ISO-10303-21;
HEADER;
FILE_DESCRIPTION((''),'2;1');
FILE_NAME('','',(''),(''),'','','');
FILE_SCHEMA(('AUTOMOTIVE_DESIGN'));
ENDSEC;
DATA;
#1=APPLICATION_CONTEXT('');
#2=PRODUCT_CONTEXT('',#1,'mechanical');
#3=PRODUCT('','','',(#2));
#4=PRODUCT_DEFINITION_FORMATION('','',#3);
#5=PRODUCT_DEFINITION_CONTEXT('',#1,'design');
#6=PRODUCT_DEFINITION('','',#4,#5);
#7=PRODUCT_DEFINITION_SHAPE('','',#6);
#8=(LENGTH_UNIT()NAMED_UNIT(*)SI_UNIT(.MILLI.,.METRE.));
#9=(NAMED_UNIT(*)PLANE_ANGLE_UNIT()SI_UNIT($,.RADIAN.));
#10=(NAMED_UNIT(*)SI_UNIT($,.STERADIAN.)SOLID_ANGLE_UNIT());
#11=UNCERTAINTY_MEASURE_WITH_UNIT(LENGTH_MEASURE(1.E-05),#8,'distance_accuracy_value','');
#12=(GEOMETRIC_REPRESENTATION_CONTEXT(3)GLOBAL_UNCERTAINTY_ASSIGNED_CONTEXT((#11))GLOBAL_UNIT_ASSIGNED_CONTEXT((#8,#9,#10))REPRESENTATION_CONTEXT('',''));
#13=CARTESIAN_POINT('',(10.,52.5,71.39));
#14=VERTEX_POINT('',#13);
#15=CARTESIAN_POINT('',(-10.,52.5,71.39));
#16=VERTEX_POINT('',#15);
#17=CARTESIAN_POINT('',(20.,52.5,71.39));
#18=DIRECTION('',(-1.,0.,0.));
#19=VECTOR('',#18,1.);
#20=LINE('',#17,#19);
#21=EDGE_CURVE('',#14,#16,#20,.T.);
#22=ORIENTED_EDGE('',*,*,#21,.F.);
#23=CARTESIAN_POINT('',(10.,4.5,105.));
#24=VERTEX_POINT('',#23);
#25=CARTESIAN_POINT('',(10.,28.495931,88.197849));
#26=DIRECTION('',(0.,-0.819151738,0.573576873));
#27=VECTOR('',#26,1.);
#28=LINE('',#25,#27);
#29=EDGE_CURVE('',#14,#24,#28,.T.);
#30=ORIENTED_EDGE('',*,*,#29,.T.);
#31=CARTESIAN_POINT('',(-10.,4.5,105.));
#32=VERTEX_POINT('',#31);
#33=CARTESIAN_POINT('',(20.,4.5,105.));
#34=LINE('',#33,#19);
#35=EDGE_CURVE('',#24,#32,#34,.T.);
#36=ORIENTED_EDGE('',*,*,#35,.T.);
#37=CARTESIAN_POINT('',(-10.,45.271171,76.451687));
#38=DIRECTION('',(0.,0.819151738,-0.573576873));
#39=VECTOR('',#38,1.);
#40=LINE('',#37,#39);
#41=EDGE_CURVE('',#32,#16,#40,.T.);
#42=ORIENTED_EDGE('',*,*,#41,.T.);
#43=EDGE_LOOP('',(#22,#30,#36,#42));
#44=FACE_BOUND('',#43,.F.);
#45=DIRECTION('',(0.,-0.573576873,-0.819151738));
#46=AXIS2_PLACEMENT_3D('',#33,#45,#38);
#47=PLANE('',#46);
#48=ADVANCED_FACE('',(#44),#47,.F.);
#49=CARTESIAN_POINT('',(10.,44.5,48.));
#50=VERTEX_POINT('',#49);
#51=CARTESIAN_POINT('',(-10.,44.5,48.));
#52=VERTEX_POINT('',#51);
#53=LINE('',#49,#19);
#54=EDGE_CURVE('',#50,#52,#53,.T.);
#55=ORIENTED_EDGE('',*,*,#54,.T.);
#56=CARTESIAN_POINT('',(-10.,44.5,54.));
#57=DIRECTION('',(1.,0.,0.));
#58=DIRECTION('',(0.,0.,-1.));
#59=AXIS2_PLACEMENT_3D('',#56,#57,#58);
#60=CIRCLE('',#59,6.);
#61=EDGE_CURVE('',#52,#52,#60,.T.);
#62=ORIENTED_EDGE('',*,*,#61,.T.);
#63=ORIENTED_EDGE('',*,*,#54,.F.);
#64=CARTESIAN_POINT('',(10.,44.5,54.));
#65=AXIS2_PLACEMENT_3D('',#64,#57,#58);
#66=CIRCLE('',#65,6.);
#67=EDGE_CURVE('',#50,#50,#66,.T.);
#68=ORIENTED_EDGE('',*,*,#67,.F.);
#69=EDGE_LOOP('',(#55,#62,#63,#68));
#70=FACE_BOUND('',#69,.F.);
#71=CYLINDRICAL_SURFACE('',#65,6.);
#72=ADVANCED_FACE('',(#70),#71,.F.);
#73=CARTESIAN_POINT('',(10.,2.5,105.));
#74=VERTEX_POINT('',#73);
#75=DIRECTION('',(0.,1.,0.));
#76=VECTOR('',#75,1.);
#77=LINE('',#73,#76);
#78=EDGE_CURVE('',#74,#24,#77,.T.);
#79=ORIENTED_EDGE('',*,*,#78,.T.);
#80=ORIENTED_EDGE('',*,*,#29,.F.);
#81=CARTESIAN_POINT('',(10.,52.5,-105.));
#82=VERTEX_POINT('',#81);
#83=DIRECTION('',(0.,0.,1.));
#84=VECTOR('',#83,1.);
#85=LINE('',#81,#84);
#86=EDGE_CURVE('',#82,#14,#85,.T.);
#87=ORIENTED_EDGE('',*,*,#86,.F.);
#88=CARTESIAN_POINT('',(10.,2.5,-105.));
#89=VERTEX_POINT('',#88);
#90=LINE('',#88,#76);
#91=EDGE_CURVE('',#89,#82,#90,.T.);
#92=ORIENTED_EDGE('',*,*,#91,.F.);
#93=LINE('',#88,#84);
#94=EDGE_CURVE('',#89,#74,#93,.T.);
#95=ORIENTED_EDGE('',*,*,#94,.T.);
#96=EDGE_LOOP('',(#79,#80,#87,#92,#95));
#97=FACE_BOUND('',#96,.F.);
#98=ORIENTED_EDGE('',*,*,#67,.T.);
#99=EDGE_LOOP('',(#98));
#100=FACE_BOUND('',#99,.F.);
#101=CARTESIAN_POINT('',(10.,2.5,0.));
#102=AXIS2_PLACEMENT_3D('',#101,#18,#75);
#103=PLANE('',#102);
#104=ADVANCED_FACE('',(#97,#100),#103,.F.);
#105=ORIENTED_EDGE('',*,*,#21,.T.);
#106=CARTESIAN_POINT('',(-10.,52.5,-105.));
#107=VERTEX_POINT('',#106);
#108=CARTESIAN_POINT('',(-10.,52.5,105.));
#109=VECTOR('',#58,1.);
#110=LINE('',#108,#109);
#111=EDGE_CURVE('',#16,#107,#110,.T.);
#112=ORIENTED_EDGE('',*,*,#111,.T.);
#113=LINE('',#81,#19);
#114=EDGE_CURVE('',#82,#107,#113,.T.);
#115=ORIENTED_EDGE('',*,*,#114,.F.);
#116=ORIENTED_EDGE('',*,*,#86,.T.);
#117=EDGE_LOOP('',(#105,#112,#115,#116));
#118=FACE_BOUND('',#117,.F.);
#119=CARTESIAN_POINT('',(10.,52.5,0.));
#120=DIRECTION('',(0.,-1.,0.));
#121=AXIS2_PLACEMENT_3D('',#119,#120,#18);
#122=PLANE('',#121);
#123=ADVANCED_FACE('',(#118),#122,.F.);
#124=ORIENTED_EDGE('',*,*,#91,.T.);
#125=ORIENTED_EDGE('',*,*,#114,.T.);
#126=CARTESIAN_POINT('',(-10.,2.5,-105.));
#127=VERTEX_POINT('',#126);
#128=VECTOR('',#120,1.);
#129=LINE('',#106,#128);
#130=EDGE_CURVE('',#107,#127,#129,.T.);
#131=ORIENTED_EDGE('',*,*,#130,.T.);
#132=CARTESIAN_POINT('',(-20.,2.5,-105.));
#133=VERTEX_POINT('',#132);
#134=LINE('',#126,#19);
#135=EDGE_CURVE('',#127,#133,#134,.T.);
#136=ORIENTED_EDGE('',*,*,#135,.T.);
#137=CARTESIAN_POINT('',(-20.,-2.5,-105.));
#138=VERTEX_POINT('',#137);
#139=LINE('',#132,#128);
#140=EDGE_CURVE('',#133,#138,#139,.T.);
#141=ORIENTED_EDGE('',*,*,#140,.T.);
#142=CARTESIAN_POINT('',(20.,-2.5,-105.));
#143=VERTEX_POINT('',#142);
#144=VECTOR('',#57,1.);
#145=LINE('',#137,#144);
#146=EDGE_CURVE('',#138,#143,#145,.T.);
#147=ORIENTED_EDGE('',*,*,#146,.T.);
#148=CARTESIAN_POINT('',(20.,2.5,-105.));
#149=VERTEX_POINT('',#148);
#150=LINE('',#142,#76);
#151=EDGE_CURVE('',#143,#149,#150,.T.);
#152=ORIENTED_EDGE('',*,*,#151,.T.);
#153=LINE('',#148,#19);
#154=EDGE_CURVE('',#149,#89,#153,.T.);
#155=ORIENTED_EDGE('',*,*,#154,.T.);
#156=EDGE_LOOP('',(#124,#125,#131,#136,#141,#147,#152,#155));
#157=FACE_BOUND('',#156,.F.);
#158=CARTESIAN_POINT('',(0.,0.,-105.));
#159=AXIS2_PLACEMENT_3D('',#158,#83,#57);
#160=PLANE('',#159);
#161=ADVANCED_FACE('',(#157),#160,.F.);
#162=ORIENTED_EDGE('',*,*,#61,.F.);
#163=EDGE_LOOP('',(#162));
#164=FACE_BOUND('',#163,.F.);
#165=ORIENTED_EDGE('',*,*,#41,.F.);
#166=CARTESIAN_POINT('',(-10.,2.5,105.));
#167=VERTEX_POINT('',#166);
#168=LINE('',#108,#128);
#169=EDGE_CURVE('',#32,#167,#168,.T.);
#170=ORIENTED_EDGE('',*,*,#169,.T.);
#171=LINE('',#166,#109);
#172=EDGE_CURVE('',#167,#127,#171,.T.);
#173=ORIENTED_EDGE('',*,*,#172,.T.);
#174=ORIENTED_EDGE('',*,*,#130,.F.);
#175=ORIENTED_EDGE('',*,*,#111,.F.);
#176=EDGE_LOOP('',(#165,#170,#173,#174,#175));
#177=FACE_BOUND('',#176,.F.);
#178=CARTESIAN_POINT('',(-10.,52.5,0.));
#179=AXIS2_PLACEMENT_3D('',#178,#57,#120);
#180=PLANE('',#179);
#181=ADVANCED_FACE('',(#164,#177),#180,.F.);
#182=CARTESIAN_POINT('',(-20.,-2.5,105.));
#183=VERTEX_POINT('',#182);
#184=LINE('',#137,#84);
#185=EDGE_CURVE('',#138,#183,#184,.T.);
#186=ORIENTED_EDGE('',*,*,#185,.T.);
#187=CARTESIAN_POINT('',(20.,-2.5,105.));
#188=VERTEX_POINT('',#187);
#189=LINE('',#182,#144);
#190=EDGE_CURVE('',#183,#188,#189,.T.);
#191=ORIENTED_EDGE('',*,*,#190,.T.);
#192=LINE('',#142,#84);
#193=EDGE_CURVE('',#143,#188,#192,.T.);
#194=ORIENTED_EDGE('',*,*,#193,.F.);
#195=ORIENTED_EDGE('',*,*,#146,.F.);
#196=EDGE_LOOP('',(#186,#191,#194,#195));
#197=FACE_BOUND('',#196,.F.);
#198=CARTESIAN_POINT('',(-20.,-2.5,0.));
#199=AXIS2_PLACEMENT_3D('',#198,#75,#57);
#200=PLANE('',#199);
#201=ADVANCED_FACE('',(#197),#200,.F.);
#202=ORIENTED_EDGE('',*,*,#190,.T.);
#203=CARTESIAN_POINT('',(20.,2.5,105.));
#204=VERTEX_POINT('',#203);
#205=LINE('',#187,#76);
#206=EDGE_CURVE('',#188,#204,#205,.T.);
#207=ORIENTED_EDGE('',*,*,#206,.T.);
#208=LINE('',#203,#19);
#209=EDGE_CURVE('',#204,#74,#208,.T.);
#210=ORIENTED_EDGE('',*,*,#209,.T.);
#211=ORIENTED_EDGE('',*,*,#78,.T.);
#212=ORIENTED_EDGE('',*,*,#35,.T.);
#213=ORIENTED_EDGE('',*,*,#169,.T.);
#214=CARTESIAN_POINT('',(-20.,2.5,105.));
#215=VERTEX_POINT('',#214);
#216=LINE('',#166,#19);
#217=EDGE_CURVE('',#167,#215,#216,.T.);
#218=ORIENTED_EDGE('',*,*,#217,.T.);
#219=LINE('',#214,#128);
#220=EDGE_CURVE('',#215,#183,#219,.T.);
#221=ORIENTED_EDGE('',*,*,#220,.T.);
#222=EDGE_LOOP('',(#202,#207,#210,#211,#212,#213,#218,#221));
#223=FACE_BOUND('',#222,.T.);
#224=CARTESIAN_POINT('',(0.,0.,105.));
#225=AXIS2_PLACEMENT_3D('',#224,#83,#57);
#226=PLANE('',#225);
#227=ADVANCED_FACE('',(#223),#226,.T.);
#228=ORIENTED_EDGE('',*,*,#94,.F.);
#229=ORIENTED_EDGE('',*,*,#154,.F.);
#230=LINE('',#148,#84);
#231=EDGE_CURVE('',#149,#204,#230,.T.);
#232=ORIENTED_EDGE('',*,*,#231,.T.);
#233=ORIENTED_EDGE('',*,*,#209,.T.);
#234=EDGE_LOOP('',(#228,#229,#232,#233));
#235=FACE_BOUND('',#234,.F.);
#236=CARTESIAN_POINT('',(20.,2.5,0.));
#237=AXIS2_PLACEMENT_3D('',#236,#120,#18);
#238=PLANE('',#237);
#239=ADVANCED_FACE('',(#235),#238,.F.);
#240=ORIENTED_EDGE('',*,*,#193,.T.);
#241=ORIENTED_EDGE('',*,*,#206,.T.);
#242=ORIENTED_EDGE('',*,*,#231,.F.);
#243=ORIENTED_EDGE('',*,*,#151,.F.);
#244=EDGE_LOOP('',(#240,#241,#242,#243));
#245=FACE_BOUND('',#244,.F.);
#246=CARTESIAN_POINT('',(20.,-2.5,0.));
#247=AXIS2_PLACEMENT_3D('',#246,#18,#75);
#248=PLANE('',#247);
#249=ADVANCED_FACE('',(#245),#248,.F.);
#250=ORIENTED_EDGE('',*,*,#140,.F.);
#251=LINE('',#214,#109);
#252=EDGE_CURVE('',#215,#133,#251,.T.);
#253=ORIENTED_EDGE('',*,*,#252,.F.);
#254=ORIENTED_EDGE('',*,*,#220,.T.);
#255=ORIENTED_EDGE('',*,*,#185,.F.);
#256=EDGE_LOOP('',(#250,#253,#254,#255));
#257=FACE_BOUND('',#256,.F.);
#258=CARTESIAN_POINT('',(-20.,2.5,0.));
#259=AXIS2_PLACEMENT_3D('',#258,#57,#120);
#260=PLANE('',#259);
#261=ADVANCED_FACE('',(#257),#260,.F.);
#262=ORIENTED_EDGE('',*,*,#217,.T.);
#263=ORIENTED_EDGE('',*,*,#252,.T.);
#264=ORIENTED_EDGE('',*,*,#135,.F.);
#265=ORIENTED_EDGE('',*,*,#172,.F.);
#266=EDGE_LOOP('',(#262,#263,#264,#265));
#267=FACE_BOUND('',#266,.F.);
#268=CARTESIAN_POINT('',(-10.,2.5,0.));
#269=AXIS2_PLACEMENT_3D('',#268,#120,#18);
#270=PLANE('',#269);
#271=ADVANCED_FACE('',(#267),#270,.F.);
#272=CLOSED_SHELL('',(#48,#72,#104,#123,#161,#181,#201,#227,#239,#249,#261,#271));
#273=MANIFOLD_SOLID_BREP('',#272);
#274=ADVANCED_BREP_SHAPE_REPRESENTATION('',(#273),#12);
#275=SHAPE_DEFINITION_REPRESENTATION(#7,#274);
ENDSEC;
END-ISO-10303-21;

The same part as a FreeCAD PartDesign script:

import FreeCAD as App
import Part
import Sketcher
Q = App.Units.Quantity


def add_polygon(sketch, points):
    """Adds a closed chain of lines whose ends are joined by coincident constraints."""
    first, n = sketch.GeometryCount, len(points)
    for a, b in zip(points, points[1:] + points[:1]):
        sketch.addGeometry(Part.LineSegment(App.Vector(*a, 0), App.Vector(*b, 0)), False)
    for i in range(n):
        sketch.addConstraint(Sketcher.Constraint("Coincident", first + i, 2, first + (i + 1) % n, 1))

doc = App.newDocument("Part")
body = doc.addObject("PartDesign::Body", "Body")

# Sketch on XY plane
sketch1 = doc.addObject("Sketcher::SketchObject", "Sketch")
body.addObject(sketch1)
sketch1.AttachmentSupport = (doc.XY_Plane, [""])
sketch1.MapMode = "FlatFace"
add_polygon(sketch1, [(-20, 2), (-20, -2), (20, -2), (20, 2), (10, 2), (10, 52), (-10, 52), (-10, 2)])  # lines 0-7
sketch1.addConstraint(Sketcher.Constraint("Vertical", 0))
sketch1.addConstraint(Sketcher.Constraint("Horizontal", 1))
sketch1.addConstraint(Sketcher.Constraint("Vertical", 2))
sketch1.addConstraint(Sketcher.Constraint("Horizontal", 3))
sketch1.addConstraint(Sketcher.Constraint("Vertical", 4))
sketch1.addConstraint(Sketcher.Constraint("Horizontal", 5))
sketch1.addConstraint(Sketcher.Constraint("Vertical", 6))
sketch1.addConstraint(Sketcher.Constraint("Horizontal", 7))
sketch1.addConstraint(Sketcher.Constraint("Symmetric", 0, 2, 2, 2, -1, 1))
sketch1.addConstraint(Sketcher.Constraint("Symmetric", 3, 2, 6, 2, -2))
sketch1.addConstraint(Sketcher.Constraint("DistanceX", 3, 2, 3, 1, 10.0))
sketch1.addConstraint(Sketcher.Constraint("DistanceX", 5, 2, 5, 1, 20.0))
sketch1.addConstraint(Sketcher.Constraint("DistanceY", 0, 2, 0, 1, 5.0))
sketch1.addConstraint(Sketcher.Constraint("DistanceY", 4, 1, 4, 2, 50.0))
pad1 = doc.addObject("PartDesign::Pad", "Pad")
body.addObject(pad1)
pad1.Profile = sketch1
pad1.Length = 210
pad1.Midplane = True

# Sketch on YZ plane
sketch2 = doc.addObject("Sketcher::SketchObject", "Sketch001")
body.addObject(sketch2)
sketch2.AttachmentSupport = (doc.YZ_Plane, [""])
sketch2.MapMode = "FlatFace"
sketch2.AttachmentOffset = App.Placement(App.Vector(0, 0, 20), App.Rotation())
add_polygon(sketch2, [(52, 105), (4, 105), (52, 71)])  # lines 0-2
sketch2.addConstraint(Sketcher.Constraint("Horizontal", 0))
sketch2.addConstraint(Sketcher.Constraint("Vertical", 2))
sketch2.addConstraint(Sketcher.Constraint("Angle", 1, Q("-35 deg")))
sketch2.addConstraint(Sketcher.Constraint("DistanceX", 0, 2, 0, 1, 48.0))
sketch2.addConstraint(Sketcher.Constraint("DistanceY", -1, 1, 0, 2, 105.0))
sketch2.addConstraint(Sketcher.Constraint("DistanceX", -1, 1, 0, 2, 4.5))
pocket1 = doc.addObject("PartDesign::Pocket", "Pocket")
body.addObject(pocket1)
pocket1.Profile = sketch2
pocket1.Type = "ThroughAll"

# Sketch on YZ plane
sketch3 = doc.addObject("Sketcher::SketchObject", "Sketch002")
body.addObject(sketch3)
sketch3.AttachmentSupport = (doc.YZ_Plane, [""])
sketch3.MapMode = "FlatFace"
sketch3.AttachmentOffset = App.Placement(App.Vector(0, 0, 10), App.Rotation())
sketch3.addGeometry(Part.Circle(App.Vector(44, 54, 0), App.Vector(0, 0, 1), 6), False)
sketch3.addConstraint(Sketcher.Constraint("Diameter", 0, 12.0))
sketch3.addConstraint(Sketcher.Constraint("DistanceY", -1, 1, 0, 3, 54.0))
sketch3.addConstraint(Sketcher.Constraint("DistanceX", -1, 1, 0, 3, 44.5))
pocket2 = doc.addObject("PartDesign::Pocket", "Pocket001")
body.addObject(pocket2)
pocket2.Profile = sketch3
pocket2.Type = "ThroughAll"

doc.recompute()
